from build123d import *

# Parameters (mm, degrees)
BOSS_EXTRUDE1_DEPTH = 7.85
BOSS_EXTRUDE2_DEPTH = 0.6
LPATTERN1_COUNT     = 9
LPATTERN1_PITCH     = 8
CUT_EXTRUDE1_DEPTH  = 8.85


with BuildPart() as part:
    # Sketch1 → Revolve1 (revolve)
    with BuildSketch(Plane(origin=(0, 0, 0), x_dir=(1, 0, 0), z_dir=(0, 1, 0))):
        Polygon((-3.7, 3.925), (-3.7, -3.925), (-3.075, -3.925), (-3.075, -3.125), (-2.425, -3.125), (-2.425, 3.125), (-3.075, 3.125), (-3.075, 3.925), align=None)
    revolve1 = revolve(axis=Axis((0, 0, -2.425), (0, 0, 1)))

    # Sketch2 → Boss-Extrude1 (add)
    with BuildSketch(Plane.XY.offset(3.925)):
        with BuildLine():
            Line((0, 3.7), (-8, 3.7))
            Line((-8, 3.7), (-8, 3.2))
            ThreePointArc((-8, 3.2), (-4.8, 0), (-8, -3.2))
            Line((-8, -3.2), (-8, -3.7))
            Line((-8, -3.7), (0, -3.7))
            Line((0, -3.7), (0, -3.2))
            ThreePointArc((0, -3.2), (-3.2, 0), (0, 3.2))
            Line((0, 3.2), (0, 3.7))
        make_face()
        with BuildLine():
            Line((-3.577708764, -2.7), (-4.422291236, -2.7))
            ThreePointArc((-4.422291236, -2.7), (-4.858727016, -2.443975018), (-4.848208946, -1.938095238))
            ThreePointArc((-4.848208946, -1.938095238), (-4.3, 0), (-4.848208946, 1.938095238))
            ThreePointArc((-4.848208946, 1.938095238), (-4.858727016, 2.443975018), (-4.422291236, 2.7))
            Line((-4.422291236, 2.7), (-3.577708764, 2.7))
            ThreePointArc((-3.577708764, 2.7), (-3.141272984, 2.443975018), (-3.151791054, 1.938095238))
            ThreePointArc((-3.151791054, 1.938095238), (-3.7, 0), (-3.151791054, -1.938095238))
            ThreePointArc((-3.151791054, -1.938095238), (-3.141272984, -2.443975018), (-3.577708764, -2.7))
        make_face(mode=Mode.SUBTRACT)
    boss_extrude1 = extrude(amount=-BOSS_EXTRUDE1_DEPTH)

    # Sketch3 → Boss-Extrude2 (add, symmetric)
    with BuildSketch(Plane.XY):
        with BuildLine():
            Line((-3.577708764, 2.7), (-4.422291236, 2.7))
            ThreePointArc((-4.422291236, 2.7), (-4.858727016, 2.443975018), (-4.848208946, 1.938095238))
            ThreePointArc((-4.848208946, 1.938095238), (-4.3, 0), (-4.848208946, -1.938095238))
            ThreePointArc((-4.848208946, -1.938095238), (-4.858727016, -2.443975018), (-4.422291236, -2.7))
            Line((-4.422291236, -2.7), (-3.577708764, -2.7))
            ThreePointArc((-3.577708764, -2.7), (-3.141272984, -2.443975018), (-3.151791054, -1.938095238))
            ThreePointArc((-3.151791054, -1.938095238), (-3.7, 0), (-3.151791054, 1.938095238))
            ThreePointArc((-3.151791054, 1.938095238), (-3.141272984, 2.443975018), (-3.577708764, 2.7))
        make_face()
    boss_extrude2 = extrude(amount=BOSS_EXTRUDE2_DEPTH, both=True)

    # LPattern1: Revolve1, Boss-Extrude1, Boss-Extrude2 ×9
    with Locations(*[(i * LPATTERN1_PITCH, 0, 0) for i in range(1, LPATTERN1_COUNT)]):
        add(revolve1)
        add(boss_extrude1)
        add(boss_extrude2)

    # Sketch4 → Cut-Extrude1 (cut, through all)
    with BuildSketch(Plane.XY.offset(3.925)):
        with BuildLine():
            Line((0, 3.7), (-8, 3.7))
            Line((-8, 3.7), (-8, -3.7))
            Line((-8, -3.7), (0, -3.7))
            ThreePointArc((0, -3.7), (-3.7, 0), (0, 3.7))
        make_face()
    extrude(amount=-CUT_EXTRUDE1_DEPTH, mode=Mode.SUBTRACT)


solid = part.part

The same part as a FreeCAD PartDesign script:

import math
import FreeCAD as App
import Part
import Sketcher

V = App.Vector
Q = App.Units.Quantity


def add_polygon(sketch, points):
    """Adds a closed chain of lines whose ends are joined by coincident constraints."""
    first, n = sketch.GeometryCount, len(points)
    for a, b in zip(points, points[1:] + points[:1]):
        sketch.addGeometry(Part.LineSegment(App.Vector(*a, 0), App.Vector(*b, 0)), False)
    for i in range(n):
        sketch.addConstraint(Sketcher.Constraint("Coincident", first + i, 2, first + (i + 1) % n, 1))

doc = App.newDocument("Part")
body = doc.addObject("PartDesign::Body", "Body")

sketch1 = body.newObject("Sketcher::SketchObject", "Sketch")
sketch1.AttachmentSupport = (doc.getObject("XZ_Plane"), [""])
sketch1.MapMode = "FlatFace"
add_polygon(sketch1, [(-3.7, -3.9), (-3.7, 3.9), (-3.1, 3.9), (-3.1, 3.1), (-2.4, 3.1), (-2.4, -3.1), (-3.1, -3.1), (-3.1, -3.9)])
sketch1.addConstraint(Sketcher.Constraint("Vertical", 0))
sketch1.addConstraint(Sketcher.Constraint("Horizontal", 1))
sketch1.addConstraint(Sketcher.Constraint("Vertical", 2))
sketch1.addConstraint(Sketcher.Constraint("Horizontal", 3))
sketch1.addConstraint(Sketcher.Constraint("Vertical", 4))
sketch1.addConstraint(Sketcher.Constraint("Horizontal", 5))
sketch1.addConstraint(Sketcher.Constraint("Vertical", 6))
sketch1.addConstraint(Sketcher.Constraint("Horizontal", 7))
sketch1.addConstraint(Sketcher.Constraint("Symmetric", 2, 2, 5, 2, -1))
sketch1.addConstraint(Sketcher.Constraint("Equal", 2, 6))
sketch1.addConstraint(Sketcher.Constraint("DistanceY", 2, 2, 2, 1, Q("0.8 mm")))
sketch1.addConstraint(Sketcher.Constraint("DistanceX", 3, 1, 3, 2, Q("0.65 mm")))
sketch1.addConstraint(Sketcher.Constraint("DistanceY", 0, 1, 0, 2, Q("7.85 mm")))
sketch1.addConstraint(Sketcher.Constraint("DistanceX", 0, 2, -1, 1, Q("3.7 mm")))
sketch1.addConstraint(Sketcher.Constraint("DistanceX", 1, 1, 1, 2, Q("0.625 mm")))
revolution = body.newObject("PartDesign::Revolution", "Revolution")
revolution.Profile = sketch1
revolution.ReferenceAxis = (sketch1, ["V_Axis"])
revolution.Angle = 360

sketch2 = body.newObject("Sketcher::SketchObject", "Sketch001")
sketch2.AttachmentSupport = (doc.getObject("XY_Plane"), [""])
sketch2.MapMode = "FlatFace"
sketch2.AttachmentOffset = App.Placement(V(0, 0, 3.925), App.Rotation())
sketch2.addGeometry(Part.LineSegment(V(0, 3.7, 0), V(-8, 3.7, 0)), False)
sketch2.addGeometry(Part.LineSegment(V(-8, 3.7, 0), V(-8, 3.2, 0)), False)
sketch2.addGeometry(Part.ArcOfCircle(Part.Circle(V(-8, 0, 0), V(0, 0, 1), 3.2), math.radians(-90), math.radians(90)), False)
sketch2.addGeometry(Part.LineSegment(V(-8, -3.2, 0), V(-8, -3.7, 0)), False)
sketch2.addGeometry(Part.LineSegment(V(-8, -3.7, 0), V(0, -3.7, 0)), False)
sketch2.addGeometry(Part.LineSegment(V(0, -3.7, 0), V(0, -3.2, 0)), False)
sketch2.addGeometry(Part.ArcOfCircle(Part.Circle(V(0, 0, 0), V(0, 0, 1), 3.2), math.radians(90), math.radians(270)), False)
sketch2.addGeometry(Part.LineSegment(V(0, 3.2, 0), V(0, 3.7, 0)), False)
sketch2.addGeometry(Part.ArcOfCircle(Part.Circle(V(-3.6, -2.2, 0), V(0, 0, 1), 0.5), math.radians(-90), math.radians(32)), False)
sketch2.addGeometry(Part.LineSegment(V(-3.6, -2.7, 0), V(-4.4, -2.7, 0)), False)
sketch2.addGeometry(Part.ArcOfCircle(Part.Circle(V(-4.4, -2.2, 0), V(0, 0, 1), 0.5), math.radians(148), math.radians(270)), False)
sketch2.addGeometry(Part.ArcOfCircle(Part.Circle(V(-8, 0, 0), V(0, 0, 1), 3.7), math.radians(-32), math.radians(32)), False)
sketch2.addGeometry(Part.ArcOfCircle(Part.Circle(V(-4.4, 2.2, 0), V(0, 0, 1), 0.5), math.radians(90), math.radians(212)), False)
sketch2.addGeometry(Part.LineSegment(V(-4.4, 2.7, 0), V(-3.6, 2.7, 0)), False)
sketch2.addGeometry(Part.ArcOfCircle(Part.Circle(V(-3.6, 2.2, 0), V(0, 0, 1), 0.5), math.radians(-32), math.radians(90)), False)
sketch2.addGeometry(Part.ArcOfCircle(Part.Circle(V(0, 0, 0), V(0, 0, 1), 3.7), math.radians(148), math.radians(212)), False)
sketch2.addConstraint(Sketcher.Constraint("Coincident", 0, 2, 1, 1))
sketch2.addConstraint(Sketcher.Constraint("Coincident", 1, 2, 2, 2))
sketch2.addConstraint(Sketcher.Constraint("Coincident", 2, 1, 3, 1))
sketch2.addConstraint(Sketcher.Constraint("Coincident", 3, 2, 4, 1))
sketch2.addConstraint(Sketcher.Constraint("Coincident", 4, 2, 5, 1))
sketch2.addConstraint(Sketcher.Constraint("Coincident", 5, 2, 6, 2))
sketch2.addConstraint(Sketcher.Constraint("Coincident", 6, 1, 7, 1))
sketch2.addConstraint(Sketcher.Constraint("Coincident", 7, 2, 0, 1))
sketch2.addConstraint(Sketcher.Constraint("Tangent", 8, 1, 9, 1))
sketch2.addConstraint(Sketcher.Constraint("Tangent", 9, 2, 10, 2))
sketch2.addConstraint(Sketcher.Constraint("Tangent", 10, 1, 11, 1))
sketch2.addConstraint(Sketcher.Constraint("Tangent", 11, 2, 12, 2))
sketch2.addConstraint(Sketcher.Constraint("Tangent", 12, 1, 13, 1))
sketch2.addConstraint(Sketcher.Constraint("Tangent", 13, 2, 14, 2))
sketch2.addConstraint(Sketcher.Constraint("Tangent", 14, 1, 15, 1))
sketch2.addConstraint(Sketcher.Constraint("Tangent", 15, 2, 8, 2))
sketch2.addConstraint(Sketcher.Constraint("Horizontal", 0))
sketch2.addConstraint(Sketcher.Constraint("Vertical", 1))
sketch2.addConstraint(Sketcher.Constraint("Vertical", 3))
sketch2.addConstraint(Sketcher.Constraint("Horizontal", 4))
sketch2.addConstraint(Sketcher.Constraint("Vertical", 5))
sketch2.addConstraint(Sketcher.Constraint("Vertical", 7))
sketch2.addConstraint(Sketcher.Constraint("Horizontal", 9))
sketch2.addConstraint(Sketcher.Constraint("Horizontal", 13))
sketch2.addConstraint(Sketcher.Constraint("Coincident", 6, 3, -1, 1))
sketch2.addConstraint(Sketcher.Constraint("Coincident", 15, 3, -1, 1))
sketch2.addConstraint(Sketcher.Constraint("Coincident", 11, 3, 2, 3))
sketch2.addConstraint(Sketcher.Constraint("Equal", 2, 6))
sketch2.addConstraint(Sketcher.Constraint("Equal", 8, 10))
sketch2.addConstraint(Sketcher.Constraint("Equal", 10, 12))
sketch2.addConstraint(Sketcher.Constraint("Equal", 12, 14))
sketch2.addConstraint(Sketcher.Constraint("Equal", 11, 15))
sketch2.addConstraint(Sketcher.Constraint("Symmetric", 4, 2, 7, 2, -1, 1))
sketch2.addConstraint(Sketcher.Constraint("Symmetric", 10, 3, 12, 3, -1))
sketch2.addConstraint(Sketcher.Constraint("PointOnObject", 4, 2, -2))
sketch2.addConstraint(Sketcher.Constraint("Vertical", 11, 3, 0, 2))
sketch2.addConstraint(Sketcher.Constraint("Vertical", 1, 2, 2, 1))
sketch2.addConstraint(Sketcher.Constraint("Radius", 2, Q("3.2 mm")))
sketch2.addConstraint(Sketcher.Constraint("Radius", 8, Q("0.5 mm")))
sketch2.addConstraint(Sketcher.Constraint("Radius", 11, Q("3.7 mm")))
sketch2.addConstraint(Sketcher.Constraint("DistanceX", 0, 2, 0, 1, Q("8 mm")))
sketch2.addConstraint(Sketcher.Constraint("DistanceY", 1, 2, 1, 1, Q("0.5 mm")))
sketch2.addConstraint(Sketcher.Constraint("DistanceY", 12, 3, 1, 2, Q("1 mm")))
pad1 = body.newObject("PartDesign::Pad", "Pad")
pad1.Profile = sketch2
pad1.Length = 7.85
pad1.Reversed = True

sketch3 = body.newObject("Sketcher::SketchObject", "Sketch002")
sketch3.AttachmentSupport = (doc.getObject("XY_Plane"), [""])
sketch3.MapMode = "FlatFace"
sketch3.addGeometry(Part.LineSegment(V(-3.6, 2.7, 0), V(-4.4, 2.7, 0)), False)
sketch3.addGeometry(Part.ArcOfCircle(Part.Circle(V(-4.4, 2.2, 0), V(0, 0, 1), 0.5), math.radians(90), math.radians(212)), False)
sketch3.addGeometry(Part.ArcOfCircle(Part.Circle(V(-8, 0, 0), V(0, 0, 1), 3.7), math.radians(-32), math.radians(32)), False)
sketch3.addGeometry(Part.ArcOfCircle(Part.Circle(V(-4.4, -2.2, 0), V(0, 0, 1), 0.5), math.radians(148), math.radians(270)), False)
sketch3.addGeometry(Part.LineSegment(V(-4.4, -2.7, 0), V(-3.6, -2.7, 0)), False)
sketch3.addGeometry(Part.ArcOfCircle(Part.Circle(V(-3.6, -2.2, 0), V(0, 0, 1), 0.5), math.radians(-90), math.radians(32)), False)
sketch3.addGeometry(Part.ArcOfCircle(Part.Circle(V(0, 0, 0), V(0, 0, 1), 3.7), math.radians(148), math.radians(212)), False)
sketch3.addGeometry(Part.ArcOfCircle(Part.Circle(V(-3.6, 2.2, 0), V(0, 0, 1), 0.5), math.radians(-32), math.radians(90)), False)
sketch3.addConstraint(Sketcher.Constraint("Tangent", 0, 2, 1, 1))
sketch3.addConstraint(Sketcher.Constraint("Tangent", 1, 2, 2, 2))
sketch3.addConstraint(Sketcher.Constraint("Tangent", 2, 1, 3, 1))
sketch3.addConstraint(Sketcher.Constraint("Tangent", 3, 2, 4, 1))
sketch3.addConstraint(Sketcher.Constraint("Tangent", 4, 2, 5, 1))
sketch3.addConstraint(Sketcher.Constraint("Tangent", 5, 2, 6, 2))
sketch3.addConstraint(Sketcher.Constraint("Tangent", 6, 1, 7, 1))
sketch3.addConstraint(Sketcher.Constraint("Tangent", 7, 2, 0, 1))
sketch3.addConstraint(Sketcher.Constraint("Horizontal", 0))
sketch3.addConstraint(Sketcher.Constraint("Horizontal", 4))
sketch3.addConstraint(Sketcher.Constraint("Coincident", 6, 3, -1, 1))
sketch3.addConstraint(Sketcher.Constraint("Equal", 1, 3))
sketch3.addConstraint(Sketcher.Constraint("Equal", 3, 5))
sketch3.addConstraint(Sketcher.Constraint("Equal", 2, 6))
sketch3.addConstraint(Sketcher.Constraint("Equal", 5, 7))
sketch3.addConstraint(Sketcher.Constraint("Symmetric", 1, 3, 3, 3, -1))
sketch3.addConstraint(Sketcher.Constraint("Radius", 1, Q("0.5 mm")))
sketch3.addConstraint(Sketcher.Constraint("Radius", 2, Q("3.7 mm")))
sketch3.addConstraint(Sketcher.Constraint("DistanceX", 2, 3, -1, 1, Q("8 mm")))
sketch3.addConstraint(Sketcher.Constraint("DistanceY", -1, 1, 1, 3, Q("2.2 mm")))
pad2 = body.newObject("PartDesign::Pad", "Pad001")
pad2.Profile = sketch3
pad2.Length = 1.2
pad2.Midplane = True
doc.recompute()

linearpattern = body.newObject("PartDesign::LinearPattern", "LinearPattern")
linearpattern.Originals = [revolution, pad1, pad2]
linearpattern.Direction = (doc.getObject("X_Axis"), [""])
linearpattern.Mode = "offset"
linearpattern.Offset = 8
linearpattern.Occurrences = 9
body.Tip = linearpattern

sketch4 = body.newObject("Sketcher::SketchObject", "Sketch003")
sketch4.AttachmentSupport = (doc.getObject("XY_Plane"), [""])
sketch4.MapMode = "FlatFace"
sketch4.AttachmentOffset = App.Placement(V(0, 0, 3.925), App.Rotation())
sketch4.addGeometry(Part.LineSegment(V(0, 3.7, 0), V(-8, 3.7, 0)), False)
sketch4.addGeometry(Part.LineSegment(V(-8, 3.7, 0), V(-8, -3.7, 0)), False)
sketch4.addGeometry(Part.LineSegment(V(-8, -3.7, 0), V(0, -3.7, 0)), False)
sketch4.addGeometry(Part.ArcOfCircle(Part.Circle(V(0, 0, 0), V(0, 0, 1), 3.7), math.radians(90), math.radians(270)), False)
sketch4.addConstraint(Sketcher.Constraint("Coincident", 0, 2, 1, 1))
sketch4.addConstraint(Sketcher.Constraint("Coincident", 1, 2, 2, 1))
sketch4.addConstraint(Sketcher.Constraint("Tangent", 2, 2, 3, 2))
sketch4.addConstraint(Sketcher.Constraint("Tangent", 3, 1, 0, 1))
sketch4.addConstraint(Sketcher.Constraint("Horizontal", 0))
sketch4.addConstraint(Sketcher.Constraint("Vertical", 1))
sketch4.addConstraint(Sketcher.Constraint("Horizontal", 2))
sketch4.addConstraint(Sketcher.Constraint("Coincident", 3, 3, -1, 1))
sketch4.addConstraint(Sketcher.Constraint("Radius", 3, Q("3.7 mm")))
sketch4.addConstraint(Sketcher.Constraint("DistanceX", 0, 2, 0, 1, Q("8 mm")))
pocket1 = body.newObject("PartDesign::Pocket", "Pocket")
pocket1.Profile = sketch4
pocket1.Type = "ThroughAll"

doc.recompute()
